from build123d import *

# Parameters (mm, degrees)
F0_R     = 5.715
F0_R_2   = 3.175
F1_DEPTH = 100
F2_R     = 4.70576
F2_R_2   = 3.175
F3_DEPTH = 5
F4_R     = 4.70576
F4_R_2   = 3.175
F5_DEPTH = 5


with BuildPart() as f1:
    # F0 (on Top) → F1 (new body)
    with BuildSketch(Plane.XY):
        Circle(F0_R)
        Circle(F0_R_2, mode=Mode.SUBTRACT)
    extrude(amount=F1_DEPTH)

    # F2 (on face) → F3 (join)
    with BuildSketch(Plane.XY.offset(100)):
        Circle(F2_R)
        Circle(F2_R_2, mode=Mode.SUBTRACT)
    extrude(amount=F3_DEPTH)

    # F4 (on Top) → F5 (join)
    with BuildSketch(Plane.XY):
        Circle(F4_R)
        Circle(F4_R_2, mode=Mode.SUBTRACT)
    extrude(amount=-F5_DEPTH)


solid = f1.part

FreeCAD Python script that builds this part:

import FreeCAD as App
import Part
import Sketcher

V = App.Vector
Q = App.Units.Quantity

doc = App.newDocument("Part")
params = doc.addObject("Spreadsheet::Sheet", "Params")
for row, (alias, value) in enumerate([
    ("sketch1_diameter", "11.43 mm"),
    ("sketch1_diameter2", "6.35 mm"),
    ("pad1_length", "100 mm"),
    ("sketch2_diameter", "6.35 mm"),
    ("pad2_length", "5 mm"),
    ("sketch3_diameter", "6.35 mm"),
    ("pad3_length", "5 mm"),
], start=1):
    params.set(f"A{row}", alias)
    params.set(f"B{row}", "=" + value)
    params.setAlias(f"B{row}", alias)

body = doc.addObject("PartDesign::Body", "Body")

# Sketch on XY plane
sketch1 = body.newObject("Sketcher::SketchObject", "Sketch")
sketch1.AttachmentSupport = (doc.getObject("XY_Plane"), [""])
sketch1.MapMode = "FlatFace"
sketch1.addGeometry([
    Part.Circle(V(0, 0, 0), V(0, 0, 1), 5.7),
    Part.Circle(V(0, 0, 0), V(0, 0, 1), 3.2),
], False)
sketch1.addConstraint([
    Sketcher.Constraint("Coincident", 0, 3, -1, 1),
    Sketcher.Constraint("Coincident", 1, 3, -1, 1),
    Sketcher.Constraint("Diameter", 0, Q("11.43 mm")),
    Sketcher.Constraint("Diameter", 1, Q("6.35 mm")),
])
sketch1.setExpression("Constraints[2]", "Params.sketch1_diameter")
sketch1.setExpression("Constraints[3]", "Params.sketch1_diameter2")
pad1 = body.newObject("PartDesign::Pad", "Pad")
pad1.Profile = sketch1
pad1.setExpression("Length", "Params.pad1_length")

# Sketch on XY plane
sketch2 = body.newObject("Sketcher::SketchObject", "Sketch001")
sketch2.AttachmentSupport = (doc.getObject("XY_Plane"), [""])
sketch2.MapMode = "FlatFace"
sketch2.AttachmentOffset = App.Placement(V(0, 0, 100), App.Rotation())
sketch2.addGeometry([
    Part.Circle(V(0, 0, 0), V(0, 0, 1), 4.7),
    Part.Circle(V(0, 0, 0), V(0, 0, 1), 3.2),
], False)
sketch2.addConstraint([
    Sketcher.Constraint("Coincident", 0, 3, -1, 1),
    Sketcher.Constraint("Coincident", 1, 3, -1, 1),
    Sketcher.Constraint("Diameter", 1, Q("6.35 mm")),
    Sketcher.Constraint("Diameter", 0, Q("9.41152 mm")),
])
sketch2.setExpression("Constraints[2]", "Params.sketch2_diameter")
pad2 = body.newObject("PartDesign::Pad", "Pad001")
pad2.Profile = sketch2
pad2.setExpression("Length", "Params.pad2_length")

# Sketch on XY plane
sketch3 = body.newObject("Sketcher::SketchObject", "Sketch002")
sketch3.AttachmentSupport = (doc.getObject("XY_Plane"), [""])
sketch3.MapMode = "FlatFace"
sketch3.addGeometry([
    Part.Circle(V(0, 0, 0), V(0, 0, 1), 4.7),
    Part.Circle(V(0, 0, 0), V(0, 0, 1), 3.2),
], False)
sketch3.addConstraint([
    Sketcher.Constraint("Coincident", 0, 3, -1, 1),
    Sketcher.Constraint("Coincident", 1, 3, -1, 1),
    Sketcher.Constraint("Diameter", 1, Q("6.35 mm")),
    Sketcher.Constraint("Diameter", 0, Q("9.41152 mm")),
])
sketch3.setExpression("Constraints[2]", "Params.sketch3_diameter")
pad3 = body.newObject("PartDesign::Pad", "Pad002")
pad3.Profile = sketch3
pad3.setExpression("Length", "Params.pad3_length")
pad3.Reversed = True

doc.recompute()
